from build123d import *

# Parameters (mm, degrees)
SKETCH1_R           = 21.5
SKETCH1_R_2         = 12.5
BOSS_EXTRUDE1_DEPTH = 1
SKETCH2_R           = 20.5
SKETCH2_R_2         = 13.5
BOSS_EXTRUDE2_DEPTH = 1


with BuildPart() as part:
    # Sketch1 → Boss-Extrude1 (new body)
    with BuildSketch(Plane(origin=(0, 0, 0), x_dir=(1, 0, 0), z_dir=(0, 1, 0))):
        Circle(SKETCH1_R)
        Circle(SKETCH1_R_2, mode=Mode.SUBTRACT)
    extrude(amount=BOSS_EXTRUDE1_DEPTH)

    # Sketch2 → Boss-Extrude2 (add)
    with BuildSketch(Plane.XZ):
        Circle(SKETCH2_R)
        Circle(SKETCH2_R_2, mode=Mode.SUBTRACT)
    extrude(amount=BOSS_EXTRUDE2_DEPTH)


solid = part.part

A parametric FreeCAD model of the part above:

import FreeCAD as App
import Part
import Sketcher
Q = App.Units.Quantity

doc = App.newDocument("Part")
params = doc.addObject("Spreadsheet::Sheet", "Params")
for row, (alias, value) in enumerate([
    ("sketch1_diameter", "43 mm"),
    ("sketch1_diameter2", "25 mm"),
    ("pad1_length", "1 mm"),
    ("sketch2_diameter", "41 mm"),
    ("sketch2_diameter2", "27 mm"),
    ("pad2_length", "1 mm"),
], start=1):
    params.set(f"A{row}", alias)
    params.set(f"B{row}", "=" + value)
    params.setAlias(f"B{row}", alias)

body = doc.addObject("PartDesign::Body", "Body")

sketch1 = body.newObject("Sketcher::SketchObject", "Sketch")
sketch1.AttachmentSupport = (doc.getObject("XZ_Plane"), [""])
sketch1.MapMode = "FlatFace"
sketch1.addGeometry([
    Part.Circle(App.Vector(0, 0, 0), App.Vector(0, 0, 1), 22),
    Part.Circle(App.Vector(0, 0, 0), App.Vector(0, 0, 1), 12),
], False)
sketch1.addConstraint([
    Sketcher.Constraint("Coincident", 0, 3, -1, 1),
    Sketcher.Constraint("Coincident", 1, 3, -1, 1),
    Sketcher.Constraint("Diameter", 0, Q("43 mm")),
    Sketcher.Constraint("Diameter", 1, Q("25 mm")),
])
sketch1.setExpression("Constraints[2]", "Params.sketch1_diameter")
sketch1.setExpression("Constraints[3]", "Params.sketch1_diameter2")
pad1 = body.newObject("PartDesign::Pad", "Pad")
pad1.Profile = sketch1
pad1.setExpression("Length", "Params.pad1_length")
pad1.Reversed = True

sketch2 = body.newObject("Sketcher::SketchObject", "Sketch001")
sketch2.AttachmentSupport = (doc.getObject("XZ_Plane"), [""])
sketch2.MapMode = "FlatFace"
sketch2.addGeometry([
    Part.Circle(App.Vector(0, 0, 0), App.Vector(0, 0, 1), 20),
    Part.Circle(App.Vector(0, 0, 0), App.Vector(0, 0, 1), 14),
], False)
sketch2.addConstraint([
    Sketcher.Constraint("Coincident", 0, 3, -1, 1),
    Sketcher.Constraint("Coincident", 1, 3, -1, 1),
    Sketcher.Constraint("Diameter", 0, Q("41 mm")),
    Sketcher.Constraint("Diameter", 1, Q("27 mm")),
])
sketch2.setExpression("Constraints[2]", "Params.sketch2_diameter")
sketch2.setExpression("Constraints[3]", "Params.sketch2_diameter2")
pad2 = body.newObject("PartDesign::Pad", "Pad001")
pad2.Profile = sketch2
pad2.setExpression("Length", "Params.pad2_length")

doc.recompute()
